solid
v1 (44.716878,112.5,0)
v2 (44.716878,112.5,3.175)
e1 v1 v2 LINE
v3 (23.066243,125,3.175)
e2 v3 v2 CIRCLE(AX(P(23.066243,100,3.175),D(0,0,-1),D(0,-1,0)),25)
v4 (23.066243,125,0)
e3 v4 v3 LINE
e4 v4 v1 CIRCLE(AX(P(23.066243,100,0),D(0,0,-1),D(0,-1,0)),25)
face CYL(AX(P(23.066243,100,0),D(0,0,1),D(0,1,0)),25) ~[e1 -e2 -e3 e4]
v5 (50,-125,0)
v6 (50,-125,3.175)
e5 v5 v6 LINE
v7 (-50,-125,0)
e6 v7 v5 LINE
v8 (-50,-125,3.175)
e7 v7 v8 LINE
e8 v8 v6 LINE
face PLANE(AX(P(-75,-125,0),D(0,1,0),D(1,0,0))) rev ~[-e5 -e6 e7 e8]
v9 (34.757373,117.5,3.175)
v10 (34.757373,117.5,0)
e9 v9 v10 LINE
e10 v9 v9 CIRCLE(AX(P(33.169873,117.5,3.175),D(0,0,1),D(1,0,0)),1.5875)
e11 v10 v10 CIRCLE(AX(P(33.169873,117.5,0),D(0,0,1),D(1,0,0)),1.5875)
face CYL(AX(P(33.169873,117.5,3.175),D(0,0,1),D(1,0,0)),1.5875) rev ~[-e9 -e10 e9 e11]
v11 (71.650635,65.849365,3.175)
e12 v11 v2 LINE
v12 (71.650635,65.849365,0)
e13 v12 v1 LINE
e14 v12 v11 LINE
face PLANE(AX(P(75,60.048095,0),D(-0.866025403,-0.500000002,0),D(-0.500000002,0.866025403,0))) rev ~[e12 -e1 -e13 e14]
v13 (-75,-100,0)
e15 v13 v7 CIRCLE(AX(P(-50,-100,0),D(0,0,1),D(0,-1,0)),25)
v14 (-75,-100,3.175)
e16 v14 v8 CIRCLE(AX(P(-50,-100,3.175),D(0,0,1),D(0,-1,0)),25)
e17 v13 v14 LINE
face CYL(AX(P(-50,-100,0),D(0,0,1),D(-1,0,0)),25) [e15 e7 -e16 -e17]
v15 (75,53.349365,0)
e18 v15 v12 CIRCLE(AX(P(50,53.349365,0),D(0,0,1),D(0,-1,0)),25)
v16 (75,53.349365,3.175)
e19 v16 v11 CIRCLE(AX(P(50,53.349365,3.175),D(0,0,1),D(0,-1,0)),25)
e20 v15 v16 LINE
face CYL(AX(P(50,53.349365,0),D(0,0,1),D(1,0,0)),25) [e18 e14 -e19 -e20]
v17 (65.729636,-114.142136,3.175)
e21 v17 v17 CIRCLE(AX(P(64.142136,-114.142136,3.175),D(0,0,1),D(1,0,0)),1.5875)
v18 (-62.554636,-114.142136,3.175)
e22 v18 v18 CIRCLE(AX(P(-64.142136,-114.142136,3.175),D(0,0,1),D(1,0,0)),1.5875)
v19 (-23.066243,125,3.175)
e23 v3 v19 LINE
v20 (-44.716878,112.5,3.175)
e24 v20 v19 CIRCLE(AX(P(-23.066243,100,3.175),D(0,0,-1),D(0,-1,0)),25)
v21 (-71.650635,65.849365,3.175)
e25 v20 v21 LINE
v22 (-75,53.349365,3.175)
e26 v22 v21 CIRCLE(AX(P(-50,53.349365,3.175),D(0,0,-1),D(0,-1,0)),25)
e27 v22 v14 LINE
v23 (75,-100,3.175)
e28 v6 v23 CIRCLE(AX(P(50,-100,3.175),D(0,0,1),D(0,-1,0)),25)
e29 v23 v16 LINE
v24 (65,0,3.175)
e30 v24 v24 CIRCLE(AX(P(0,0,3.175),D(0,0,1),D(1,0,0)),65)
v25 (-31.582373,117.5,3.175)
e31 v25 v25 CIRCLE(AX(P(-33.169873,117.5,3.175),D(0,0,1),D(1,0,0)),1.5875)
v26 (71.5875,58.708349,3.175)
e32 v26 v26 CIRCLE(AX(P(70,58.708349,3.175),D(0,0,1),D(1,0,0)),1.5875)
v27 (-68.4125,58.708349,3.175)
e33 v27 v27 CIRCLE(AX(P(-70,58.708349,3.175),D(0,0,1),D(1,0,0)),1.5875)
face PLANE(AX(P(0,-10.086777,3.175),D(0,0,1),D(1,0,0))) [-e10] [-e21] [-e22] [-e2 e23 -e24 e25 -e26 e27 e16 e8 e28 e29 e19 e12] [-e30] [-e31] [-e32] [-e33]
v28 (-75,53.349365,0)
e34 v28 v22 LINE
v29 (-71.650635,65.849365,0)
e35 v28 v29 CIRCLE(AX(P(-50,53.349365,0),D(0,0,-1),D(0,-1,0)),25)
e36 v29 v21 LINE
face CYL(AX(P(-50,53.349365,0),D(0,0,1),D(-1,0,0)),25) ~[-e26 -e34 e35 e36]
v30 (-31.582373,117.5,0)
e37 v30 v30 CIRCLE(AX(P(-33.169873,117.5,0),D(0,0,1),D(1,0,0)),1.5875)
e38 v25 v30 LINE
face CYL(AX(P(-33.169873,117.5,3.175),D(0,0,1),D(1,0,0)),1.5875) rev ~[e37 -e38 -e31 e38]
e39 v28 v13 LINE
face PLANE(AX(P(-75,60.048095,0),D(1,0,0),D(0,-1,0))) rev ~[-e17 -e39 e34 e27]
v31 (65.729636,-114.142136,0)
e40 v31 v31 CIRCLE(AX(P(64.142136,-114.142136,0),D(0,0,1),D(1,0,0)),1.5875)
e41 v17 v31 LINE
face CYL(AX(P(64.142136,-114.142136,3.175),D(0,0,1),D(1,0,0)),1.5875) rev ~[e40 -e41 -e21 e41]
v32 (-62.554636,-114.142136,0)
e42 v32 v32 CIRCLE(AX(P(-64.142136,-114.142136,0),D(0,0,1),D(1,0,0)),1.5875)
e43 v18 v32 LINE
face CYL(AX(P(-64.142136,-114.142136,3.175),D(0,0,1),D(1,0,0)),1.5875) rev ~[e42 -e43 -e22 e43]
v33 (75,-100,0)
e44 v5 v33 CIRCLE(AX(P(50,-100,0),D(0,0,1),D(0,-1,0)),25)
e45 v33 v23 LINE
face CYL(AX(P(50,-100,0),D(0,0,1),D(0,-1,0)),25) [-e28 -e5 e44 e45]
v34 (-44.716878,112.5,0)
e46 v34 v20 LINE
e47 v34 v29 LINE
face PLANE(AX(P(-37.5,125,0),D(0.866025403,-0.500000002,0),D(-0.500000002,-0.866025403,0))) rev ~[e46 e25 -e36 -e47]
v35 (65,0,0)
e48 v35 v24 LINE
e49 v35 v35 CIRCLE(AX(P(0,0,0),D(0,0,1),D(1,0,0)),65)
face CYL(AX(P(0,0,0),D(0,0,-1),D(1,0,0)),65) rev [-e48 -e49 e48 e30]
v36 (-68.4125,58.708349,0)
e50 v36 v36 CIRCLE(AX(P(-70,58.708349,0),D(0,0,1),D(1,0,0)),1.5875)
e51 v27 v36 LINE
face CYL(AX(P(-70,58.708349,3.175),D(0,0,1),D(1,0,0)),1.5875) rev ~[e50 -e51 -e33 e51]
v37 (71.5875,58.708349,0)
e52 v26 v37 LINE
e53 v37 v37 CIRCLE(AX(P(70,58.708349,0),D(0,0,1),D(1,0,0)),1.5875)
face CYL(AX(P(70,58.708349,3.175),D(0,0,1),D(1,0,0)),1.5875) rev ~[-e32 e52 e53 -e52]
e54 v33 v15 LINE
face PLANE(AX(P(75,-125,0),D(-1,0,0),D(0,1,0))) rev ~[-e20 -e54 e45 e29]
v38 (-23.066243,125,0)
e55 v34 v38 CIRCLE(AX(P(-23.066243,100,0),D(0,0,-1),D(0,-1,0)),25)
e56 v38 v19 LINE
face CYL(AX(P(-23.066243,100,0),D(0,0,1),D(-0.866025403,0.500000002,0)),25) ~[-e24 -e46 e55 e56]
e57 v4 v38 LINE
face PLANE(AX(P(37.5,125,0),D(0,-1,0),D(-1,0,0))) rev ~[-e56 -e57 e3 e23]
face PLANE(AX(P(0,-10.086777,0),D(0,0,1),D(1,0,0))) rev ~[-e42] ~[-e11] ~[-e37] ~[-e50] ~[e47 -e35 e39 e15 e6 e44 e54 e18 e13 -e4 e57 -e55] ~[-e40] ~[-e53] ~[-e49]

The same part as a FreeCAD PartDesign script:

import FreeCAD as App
import Part
import Sketcher
Q = App.Units.Quantity


def edges_at(feature, points):
    """Names of the edges that pass closest to the given points."""
    edges = feature.Shape.Edges
    near = lambda p: min(range(len(edges)), key=lambda i: edges[i].distToShape(Part.Vertex(*p))[0])
    return sorted({f"Edge{near(p) + 1}" for p in points})

doc = App.newDocument("Part")
params = doc.addObject("Spreadsheet::Sheet", "Params")
for row, (alias, value) in enumerate([
    ("sketch1_diameter", "130 mm"),
    ("sketch1_width", "150 mm"),
    ("sketch1_width2", "75 mm"),
    ("pad1_length", "3.175 mm"),
    ("fillet_radius", "25 mm"),
], start=1):
    params.set(f"A{row}", alias)
    params.set(f"B{row}", "=" + value)
    params.setAlias(f"B{row}", alias)

body = doc.addObject("PartDesign::Body", "Body")

# Sketch on XY plane
sketch1 = doc.addObject("Sketcher::SketchObject", "Sketch")
body.addObject(sketch1)
sketch1.AttachmentSupport = (doc.XY_Plane, [""])
sketch1.MapMode = "FlatFace"
sketch1.addGeometry([
    Part.LineSegment(App.Vector(-75, 60, 0), App.Vector(-75, -125, 0)),  # 0
    Part.LineSegment(App.Vector(-75, -125, 0), App.Vector(75, -125, 0)),  # 1
    Part.LineSegment(App.Vector(75, -125, 0), App.Vector(75, 60, 0)),  # 2
    Part.LineSegment(App.Vector(75, 60, 0), App.Vector(38, 125, 0)),  # 3
    Part.LineSegment(App.Vector(38, 125, 0), App.Vector(-38, 125, 0)),  # 4
    Part.LineSegment(App.Vector(-38, 125, 0), App.Vector(-75, 60, 0)),  # 5
    Part.Circle(App.Vector(0, 0, 0), App.Vector(0, 0, 1), 65),  # 6
], False)
sketch1.addConstraint([
    Sketcher.Constraint("Coincident", 0, 2, 1, 1),
    Sketcher.Constraint("Coincident", 1, 2, 2, 1),
    Sketcher.Constraint("Coincident", 2, 2, 3, 1),
    Sketcher.Constraint("Coincident", 3, 2, 4, 1),
    Sketcher.Constraint("Coincident", 4, 2, 5, 1),
    Sketcher.Constraint("Coincident", 5, 2, 0, 1),
    Sketcher.Constraint("Vertical", 0),
    Sketcher.Constraint("Horizontal", 1),
    Sketcher.Constraint("Vertical", 2),
    Sketcher.Constraint("Horizontal", 4),
    Sketcher.Constraint("Coincident", 6, 3, -1, 1),
    Sketcher.Constraint("Symmetric", 2, 2, 5, 2, -2),
    Sketcher.Constraint("Equal", 3, 5),
    Sketcher.Constraint("Diameter", 6, 130.0),
    Sketcher.Constraint("DistanceX", 1, 1, 1, 2, 150.0),
    Sketcher.Constraint("DistanceX", 4, 2, 4, 1, 75.0),
    Sketcher.Constraint("Angle", 3, Q("120 deg")),
    Sketcher.Constraint("DistanceY", 0, 2, -1, 1, 125.0),
    Sketcher.Constraint("DistanceY", -1, 1, 3, 2, 125.0),
])
sketch1.setExpression("Constraints[13]", "Params.sketch1_diameter")
sketch1.setExpression("Constraints[14]", "Params.sketch1_width")
sketch1.setExpression("Constraints[15]", "Params.sketch1_width2")
pad1 = doc.addObject("PartDesign::Pad", "Pad")
body.addObject(pad1)
pad1.Profile = sketch1
pad1.setExpression("Length", "Params.pad1_length")
doc.recompute()

fillet = doc.addObject("PartDesign::Fillet", "Fillet")
body.addObject(fillet)
fillet.Base = (pad1, edges_at(pad1, [
    (-75, -125, 1.587),
    (75, -125, 1.587),
    (-37.5, 125, 1.587),
    (-75, 60.048, 1.587),
    (75, 60.048, 1.587),
    (37.5, 125, 1.587),
]))
fillet.setExpression("Radius", "Params.fillet_radius")

# Sketch on XY plane
sketch2 = doc.addObject("Sketcher::SketchObject", "Sketch001")
body.addObject(sketch2)
sketch2.AttachmentSupport = (doc.XY_Plane, [""])
sketch2.MapMode = "FlatFace"
sketch2.AttachmentOffset = App.Placement(App.Vector(0, 0, 3.175), App.Rotation())
sketch2.addGeometry([
    Part.Circle(App.Vector(-33.2, 117.5, 0), App.Vector(0, 0, 1), 1.6),  # 0
    Part.Circle(App.Vector(33.2, 117.5, 0), App.Vector(0, 0, 1), 1.6),  # 1
    Part.Circle(App.Vector(70, 58.7, 0), App.Vector(0, 0, 1), 1.6),  # 2
    Part.Circle(App.Vector(-70, 58.7, 0), App.Vector(0, 0, 1), 1.6),  # 3
    Part.Circle(App.Vector(-64.1, -114.1, 0), App.Vector(0, 0, 1), 1.6),  # 4
    Part.Circle(App.Vector(64.1, -114.1, 0), App.Vector(0, 0, 1), 1.6),  # 5
], False)
sketch2.addConstraint([
    Sketcher.Constraint("Equal", 0, 1),
    Sketcher.Constraint("Equal", 1, 2),
    Sketcher.Constraint("Equal", 2, 3),
    Sketcher.Constraint("Equal", 3, 4),
    Sketcher.Constraint("Equal", 4, 5),
    Sketcher.Constraint("Symmetric", 0, 3, 1, 3, -2),
    Sketcher.Constraint("Symmetric", 2, 3, 3, 3, -2),
    Sketcher.Constraint("Symmetric", 4, 3, 5, 3, -2),
    Sketcher.Constraint("Diameter", 0, 3.175),
    Sketcher.Constraint("DistanceX", -1, 1, 2, 3, 70.0),
    Sketcher.Constraint("DistanceY", -1, 1, 0, 3, 117.5),
    Sketcher.Constraint("DistanceY", -1, 1, 2, 3, 58.708349),
    Sketcher.Constraint("DistanceX", 4, 3, 1, 3, 97.312009),
    Sketcher.Constraint("DistanceX", 4, 3, 5, 3, 128.284272),
    Sketcher.Constraint("DistanceY", 4, 3, -1, 1, 114.142136),
])
pocket1 = doc.addObject("PartDesign::Pocket", "Pocket")
body.addObject(pocket1)
pocket1.Profile = sketch2
pocket1.Type = "ThroughAll"

doc.recompute()
